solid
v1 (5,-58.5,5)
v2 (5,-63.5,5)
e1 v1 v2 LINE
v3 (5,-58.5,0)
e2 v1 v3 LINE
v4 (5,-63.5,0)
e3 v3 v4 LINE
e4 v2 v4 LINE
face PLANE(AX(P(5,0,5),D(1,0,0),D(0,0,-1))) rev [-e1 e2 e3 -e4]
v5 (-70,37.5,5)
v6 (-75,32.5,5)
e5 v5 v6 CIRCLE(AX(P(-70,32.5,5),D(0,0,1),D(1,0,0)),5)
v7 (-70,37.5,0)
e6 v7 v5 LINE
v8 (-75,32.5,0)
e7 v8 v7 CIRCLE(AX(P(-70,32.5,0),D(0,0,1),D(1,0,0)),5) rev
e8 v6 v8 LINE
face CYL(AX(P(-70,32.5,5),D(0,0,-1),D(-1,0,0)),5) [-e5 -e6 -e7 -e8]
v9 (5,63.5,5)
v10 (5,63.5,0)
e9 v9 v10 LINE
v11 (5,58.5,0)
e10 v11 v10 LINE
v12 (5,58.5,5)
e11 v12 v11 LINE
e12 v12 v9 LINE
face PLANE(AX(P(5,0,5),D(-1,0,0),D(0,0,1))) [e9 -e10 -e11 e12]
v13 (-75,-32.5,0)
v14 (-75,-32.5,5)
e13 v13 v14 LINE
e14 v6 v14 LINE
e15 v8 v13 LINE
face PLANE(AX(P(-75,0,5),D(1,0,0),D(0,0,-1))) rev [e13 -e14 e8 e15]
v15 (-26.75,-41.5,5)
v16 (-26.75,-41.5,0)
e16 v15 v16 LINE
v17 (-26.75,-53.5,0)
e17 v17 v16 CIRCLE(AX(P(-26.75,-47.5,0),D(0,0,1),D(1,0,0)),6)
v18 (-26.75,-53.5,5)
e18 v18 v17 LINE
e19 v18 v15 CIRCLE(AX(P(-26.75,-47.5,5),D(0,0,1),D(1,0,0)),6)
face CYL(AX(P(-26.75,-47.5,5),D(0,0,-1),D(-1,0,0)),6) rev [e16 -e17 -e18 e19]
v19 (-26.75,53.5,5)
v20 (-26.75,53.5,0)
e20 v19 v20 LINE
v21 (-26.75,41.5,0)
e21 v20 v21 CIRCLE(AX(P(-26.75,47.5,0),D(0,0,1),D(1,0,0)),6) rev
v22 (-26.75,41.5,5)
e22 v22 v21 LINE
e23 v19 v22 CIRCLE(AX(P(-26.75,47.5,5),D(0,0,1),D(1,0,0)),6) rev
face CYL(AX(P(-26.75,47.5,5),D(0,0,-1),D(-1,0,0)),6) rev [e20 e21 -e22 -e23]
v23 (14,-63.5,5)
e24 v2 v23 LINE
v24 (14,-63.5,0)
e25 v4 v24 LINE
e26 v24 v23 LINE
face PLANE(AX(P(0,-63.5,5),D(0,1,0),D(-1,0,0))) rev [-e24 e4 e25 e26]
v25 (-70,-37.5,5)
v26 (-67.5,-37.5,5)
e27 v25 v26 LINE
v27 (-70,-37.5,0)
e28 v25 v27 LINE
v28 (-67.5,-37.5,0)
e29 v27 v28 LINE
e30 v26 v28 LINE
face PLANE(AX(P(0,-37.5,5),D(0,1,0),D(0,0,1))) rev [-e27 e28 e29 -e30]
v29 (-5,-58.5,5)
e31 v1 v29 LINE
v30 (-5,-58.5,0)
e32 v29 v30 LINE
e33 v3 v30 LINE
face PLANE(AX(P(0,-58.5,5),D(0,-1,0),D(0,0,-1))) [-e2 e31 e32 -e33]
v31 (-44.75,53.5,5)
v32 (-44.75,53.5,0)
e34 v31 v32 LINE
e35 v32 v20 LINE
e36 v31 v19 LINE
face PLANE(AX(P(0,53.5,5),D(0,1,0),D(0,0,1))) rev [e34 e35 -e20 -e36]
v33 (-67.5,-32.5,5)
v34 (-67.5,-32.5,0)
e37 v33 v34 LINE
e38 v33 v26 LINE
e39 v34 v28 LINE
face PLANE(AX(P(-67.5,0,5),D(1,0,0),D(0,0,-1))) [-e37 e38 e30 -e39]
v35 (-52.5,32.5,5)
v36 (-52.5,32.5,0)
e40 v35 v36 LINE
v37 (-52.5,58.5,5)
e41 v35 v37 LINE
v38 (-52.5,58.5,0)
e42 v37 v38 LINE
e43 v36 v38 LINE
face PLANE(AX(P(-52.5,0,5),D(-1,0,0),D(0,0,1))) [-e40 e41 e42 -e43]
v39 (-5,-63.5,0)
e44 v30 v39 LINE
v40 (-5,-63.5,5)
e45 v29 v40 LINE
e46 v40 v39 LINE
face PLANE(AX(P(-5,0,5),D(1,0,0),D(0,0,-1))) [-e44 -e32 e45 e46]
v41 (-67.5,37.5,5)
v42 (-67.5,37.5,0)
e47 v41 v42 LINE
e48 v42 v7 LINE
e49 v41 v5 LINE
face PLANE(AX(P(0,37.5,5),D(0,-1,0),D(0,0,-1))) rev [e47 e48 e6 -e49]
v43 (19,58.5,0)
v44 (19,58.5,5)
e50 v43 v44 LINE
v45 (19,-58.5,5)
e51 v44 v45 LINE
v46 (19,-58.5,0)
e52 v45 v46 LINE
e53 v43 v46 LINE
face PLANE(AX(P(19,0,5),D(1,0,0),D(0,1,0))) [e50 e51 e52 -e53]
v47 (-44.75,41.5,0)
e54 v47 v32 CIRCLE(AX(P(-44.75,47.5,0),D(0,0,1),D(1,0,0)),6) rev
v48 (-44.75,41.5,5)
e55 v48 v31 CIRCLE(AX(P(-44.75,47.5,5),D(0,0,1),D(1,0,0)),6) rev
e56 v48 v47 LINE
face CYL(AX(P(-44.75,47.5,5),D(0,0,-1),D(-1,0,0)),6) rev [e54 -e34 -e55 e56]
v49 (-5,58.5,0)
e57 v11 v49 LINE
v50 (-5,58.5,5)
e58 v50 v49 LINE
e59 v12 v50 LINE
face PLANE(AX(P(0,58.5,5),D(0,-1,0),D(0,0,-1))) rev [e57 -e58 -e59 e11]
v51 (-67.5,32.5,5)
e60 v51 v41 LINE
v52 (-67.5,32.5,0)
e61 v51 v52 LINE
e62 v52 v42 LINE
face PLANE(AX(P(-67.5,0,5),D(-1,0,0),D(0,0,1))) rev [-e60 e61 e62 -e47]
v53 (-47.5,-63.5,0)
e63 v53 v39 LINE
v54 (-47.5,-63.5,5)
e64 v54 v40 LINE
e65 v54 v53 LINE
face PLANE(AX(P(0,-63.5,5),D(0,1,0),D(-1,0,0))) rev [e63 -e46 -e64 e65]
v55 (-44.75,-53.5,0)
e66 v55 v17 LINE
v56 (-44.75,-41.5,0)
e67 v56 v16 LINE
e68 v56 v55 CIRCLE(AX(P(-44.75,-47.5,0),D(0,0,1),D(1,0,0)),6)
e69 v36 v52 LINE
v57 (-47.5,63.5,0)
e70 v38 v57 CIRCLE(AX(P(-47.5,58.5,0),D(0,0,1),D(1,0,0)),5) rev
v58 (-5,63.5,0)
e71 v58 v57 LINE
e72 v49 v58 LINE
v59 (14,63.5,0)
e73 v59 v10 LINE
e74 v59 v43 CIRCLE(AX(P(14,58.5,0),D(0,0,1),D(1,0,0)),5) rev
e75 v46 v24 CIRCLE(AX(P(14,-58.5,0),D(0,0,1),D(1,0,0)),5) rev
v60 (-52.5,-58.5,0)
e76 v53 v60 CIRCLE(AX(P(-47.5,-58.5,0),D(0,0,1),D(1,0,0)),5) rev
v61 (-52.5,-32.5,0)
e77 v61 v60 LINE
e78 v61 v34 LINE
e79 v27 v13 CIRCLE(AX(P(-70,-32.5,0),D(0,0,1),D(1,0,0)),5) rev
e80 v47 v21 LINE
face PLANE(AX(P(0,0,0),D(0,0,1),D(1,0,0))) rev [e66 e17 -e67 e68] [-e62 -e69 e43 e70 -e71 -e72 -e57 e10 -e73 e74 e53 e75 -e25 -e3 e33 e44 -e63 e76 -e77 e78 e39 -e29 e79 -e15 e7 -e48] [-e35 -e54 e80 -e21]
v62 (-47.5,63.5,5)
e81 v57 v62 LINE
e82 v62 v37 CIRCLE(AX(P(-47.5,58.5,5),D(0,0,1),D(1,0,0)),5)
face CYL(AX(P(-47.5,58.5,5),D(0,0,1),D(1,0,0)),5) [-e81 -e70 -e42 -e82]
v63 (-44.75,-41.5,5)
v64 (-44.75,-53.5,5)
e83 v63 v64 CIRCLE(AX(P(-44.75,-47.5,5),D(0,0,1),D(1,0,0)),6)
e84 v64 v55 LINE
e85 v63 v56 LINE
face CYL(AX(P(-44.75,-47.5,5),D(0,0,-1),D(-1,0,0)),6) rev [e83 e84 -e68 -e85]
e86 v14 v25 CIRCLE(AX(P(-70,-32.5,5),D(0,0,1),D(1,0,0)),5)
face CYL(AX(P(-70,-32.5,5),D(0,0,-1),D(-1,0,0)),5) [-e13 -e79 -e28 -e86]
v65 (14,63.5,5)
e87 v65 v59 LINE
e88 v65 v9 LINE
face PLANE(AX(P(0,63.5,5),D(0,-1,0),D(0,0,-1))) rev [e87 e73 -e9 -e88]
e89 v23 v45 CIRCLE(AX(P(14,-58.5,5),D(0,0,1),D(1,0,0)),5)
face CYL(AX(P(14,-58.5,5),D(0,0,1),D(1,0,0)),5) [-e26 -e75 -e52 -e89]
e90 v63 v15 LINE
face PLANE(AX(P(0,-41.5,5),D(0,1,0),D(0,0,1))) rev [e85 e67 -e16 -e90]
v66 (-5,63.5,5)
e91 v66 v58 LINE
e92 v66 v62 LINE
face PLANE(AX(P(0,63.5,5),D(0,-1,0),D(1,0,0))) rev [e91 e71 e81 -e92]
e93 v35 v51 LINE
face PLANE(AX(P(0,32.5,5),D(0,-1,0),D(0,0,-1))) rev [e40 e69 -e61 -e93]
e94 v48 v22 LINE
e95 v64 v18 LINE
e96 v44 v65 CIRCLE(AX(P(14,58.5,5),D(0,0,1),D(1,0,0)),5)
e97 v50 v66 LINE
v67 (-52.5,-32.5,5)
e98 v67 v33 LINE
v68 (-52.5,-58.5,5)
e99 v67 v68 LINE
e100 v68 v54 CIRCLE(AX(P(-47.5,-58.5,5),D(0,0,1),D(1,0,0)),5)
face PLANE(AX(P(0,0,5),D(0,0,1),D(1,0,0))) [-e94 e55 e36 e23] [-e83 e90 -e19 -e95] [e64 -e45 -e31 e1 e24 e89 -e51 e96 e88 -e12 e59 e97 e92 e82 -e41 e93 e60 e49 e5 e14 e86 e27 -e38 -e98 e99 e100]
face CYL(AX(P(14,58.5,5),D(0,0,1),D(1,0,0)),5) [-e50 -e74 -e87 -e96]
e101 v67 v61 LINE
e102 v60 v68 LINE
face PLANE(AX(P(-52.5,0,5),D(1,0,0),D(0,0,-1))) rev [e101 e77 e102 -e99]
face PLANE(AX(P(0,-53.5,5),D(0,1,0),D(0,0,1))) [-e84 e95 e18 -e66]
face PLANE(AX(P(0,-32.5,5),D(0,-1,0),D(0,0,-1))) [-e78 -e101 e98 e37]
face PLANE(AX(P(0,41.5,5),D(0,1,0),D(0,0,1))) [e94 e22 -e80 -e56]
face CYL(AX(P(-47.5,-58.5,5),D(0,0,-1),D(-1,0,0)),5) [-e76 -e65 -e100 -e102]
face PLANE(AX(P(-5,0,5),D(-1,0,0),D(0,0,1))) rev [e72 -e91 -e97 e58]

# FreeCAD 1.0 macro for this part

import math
import FreeCAD as App
import Part
import Sketcher

V = App.Vector
Q = App.Units.Quantity


def edges_at(feature, points):
    """Names of the edges that pass closest to the given points."""
    edges = feature.Shape.Edges
    near = lambda p: min(range(len(edges)), key=lambda i: edges[i].distToShape(Part.Vertex(*p))[0])
    return sorted({f"Edge{near(p) + 1}" for p in points})

doc = App.newDocument("Part")
body = doc.addObject("PartDesign::Body", "Body")

sketch1 = body.newObject("Sketcher::SketchObject", "Sketch")
sketch1.AttachmentSupport = (doc.getObject("XY_Plane"), [""])
sketch1.MapMode = "FlatFace"
sketch1.addGeometry(Part.LineSegment(V(-5, -64, 0), V(-5, -58, 0)), False)
sketch1.addGeometry(Part.LineSegment(V(-5, -58, 0), V(5, -58, 0)), False)
sketch1.addGeometry(Part.LineSegment(V(5, -58, 0), V(5, -64, 0)), False)
sketch1.addGeometry(Part.LineSegment(V(5, -64, 0), V(19, -64, 0)), False)
sketch1.addGeometry(Part.LineSegment(V(19, -64, 0), V(19, 64, 0)), False)
sketch1.addGeometry(Part.LineSegment(V(19, 64, 0), V(5, 64, 0)), False)
sketch1.addGeometry(Part.LineSegment(V(5, 64, 0), V(5, 58, 0)), False)
sketch1.addGeometry(Part.LineSegment(V(5, 58, 0), V(-5, 58, 0)), False)
sketch1.addGeometry(Part.LineSegment(V(-5, 58, 0), V(-5, 64, 0)), False)
sketch1.addGeometry(Part.LineSegment(V(-5, 64, 0), V(-52, 64, 0)), False)
sketch1.addGeometry(Part.LineSegment(V(-52, 64, 0), V(-52, 32, 0)), False)
sketch1.addGeometry(Part.LineSegment(V(-52, 32, 0), V(-68, 32, 0)), False)
sketch1.addGeometry(Part.LineSegment(V(-68, 32, 0), V(-68, 38, 0)), False)
sketch1.addGeometry(Part.LineSegment(V(-68, 38, 0), V(-75, 38, 0)), False)
sketch1.addGeometry(Part.LineSegment(V(-75, 38, 0), V(-75, -38, 0)), False)
sketch1.addGeometry(Part.LineSegment(V(-75, -38, 0), V(-68, -38, 0)), False)
sketch1.addGeometry(Part.LineSegment(V(-68, -38, 0), V(-68, -32, 0)), False)
sketch1.addGeometry(Part.LineSegment(V(-68, -32, 0), V(-52, -32, 0)), False)
sketch1.addGeometry(Part.LineSegment(V(-52, -32, 0), V(-52, -64, 0)), False)
sketch1.addGeometry(Part.LineSegment(V(-52, -64, 0), V(-5, -64, 0)), False)
sketch1.addGeometry(Part.ArcOfCircle(Part.Circle(V(-45, -48, 0), V(0, 0, 1), 6), math.radians(90), math.radians(270)), False)
sketch1.addGeometry(Part.LineSegment(V(-45, -42, 0), V(-27, -42, 0)), False)
sketch1.addGeometry(Part.ArcOfCircle(Part.Circle(V(-27, -48, 0), V(0, 0, 1), 6), math.radians(-90), math.radians(90)), False)
sketch1.addGeometry(Part.LineSegment(V(-27, -54, 0), V(-45, -54, 0)), False)
sketch1.addGeometry(Part.ArcOfCircle(Part.Circle(V(-27, 48, 0), V(0, 0, 1), 6), math.radians(-90), math.radians(90)), False)
sketch1.addGeometry(Part.LineSegment(V(-27, 42, 0), V(-45, 42, 0)), False)
sketch1.addGeometry(Part.ArcOfCircle(Part.Circle(V(-45, 48, 0), V(0, 0, 1), 6), math.radians(90), math.radians(270)), False)
sketch1.addGeometry(Part.LineSegment(V(-45, 54, 0), V(-27, 54, 0)), False)
sketch1.addConstraint(Sketcher.Constraint("Coincident", 0, 2, 1, 1))
sketch1.addConstraint(Sketcher.Constraint("Coincident", 1, 2, 2, 1))
sketch1.addConstraint(Sketcher.Constraint("Coincident", 2, 2, 3, 1))
sketch1.addConstraint(Sketcher.Constraint("Coincident", 3, 2, 4, 1))
sketch1.addConstraint(Sketcher.Constraint("Coincident", 4, 2, 5, 1))
sketch1.addConstraint(Sketcher.Constraint("Coincident", 5, 2, 6, 1))
sketch1.addConstraint(Sketcher.Constraint("Coincident", 6, 2, 7, 1))
sketch1.addConstraint(Sketcher.Constraint("Coincident", 7, 2, 8, 1))
sketch1.addConstraint(Sketcher.Constraint("Coincident", 8, 2, 9, 1))
sketch1.addConstraint(Sketcher.Constraint("Coincident", 9, 2, 10, 1))
sketch1.addConstraint(Sketcher.Constraint("Coincident", 10, 2, 11, 1))
sketch1.addConstraint(Sketcher.Constraint("Coincident", 11, 2, 12, 1))
sketch1.addConstraint(Sketcher.Constraint("Coincident", 12, 2, 13, 1))
sketch1.addConstraint(Sketcher.Constraint("Coincident", 13, 2, 14, 1))
sketch1.addConstraint(Sketcher.Constraint("Coincident", 14, 2, 15, 1))
sketch1.addConstraint(Sketcher.Constraint("Coincident", 15, 2, 16, 1))
sketch1.addConstraint(Sketcher.Constraint("Coincident", 16, 2, 17, 1))
sketch1.addConstraint(Sketcher.Constraint("Coincident", 17, 2, 18, 1))
sketch1.addConstraint(Sketcher.Constraint("Coincident", 18, 2, 19, 1))
sketch1.addConstraint(Sketcher.Constraint("Coincident", 19, 2, 0, 1))
sketch1.addConstraint(Sketcher.Constraint("Tangent", 20, 1, 21, 1))
sketch1.addConstraint(Sketcher.Constraint("Tangent", 21, 2, 22, 2))
sketch1.addConstraint(Sketcher.Constraint("Tangent", 22, 1, 23, 1))
sketch1.addConstraint(Sketcher.Constraint("Tangent", 23, 2, 20, 2))
sketch1.addConstraint(Sketcher.Constraint("Tangent", 24, 1, 25, 1))
sketch1.addConstraint(Sketcher.Constraint("Tangent", 25, 2, 26, 2))
sketch1.addConstraint(Sketcher.Constraint("Tangent", 26, 1, 27, 1))
sketch1.addConstraint(Sketcher.Constraint("Tangent", 27, 2, 24, 2))
sketch1.addConstraint(Sketcher.Constraint("Vertical", 0))
sketch1.addConstraint(Sketcher.Constraint("Horizontal", 1))
sketch1.addConstraint(Sketcher.Constraint("Vertical", 2))
sketch1.addConstraint(Sketcher.Constraint("Horizontal", 3))
sketch1.addConstraint(Sketcher.Constraint("Vertical", 4))
sketch1.addConstraint(Sketcher.Constraint("Horizontal", 5))
sketch1.addConstraint(Sketcher.Constraint("Vertical", 6))
sketch1.addConstraint(Sketcher.Constraint("Horizontal", 7))
sketch1.addConstraint(Sketcher.Constraint("Vertical", 8))
sketch1.addConstraint(Sketcher.Constraint("Horizontal", 9))
sketch1.addConstraint(Sketcher.Constraint("Vertical", 10))
sketch1.addConstraint(Sketcher.Constraint("Horizontal", 11))
sketch1.addConstraint(Sketcher.Constraint("Vertical", 12))
sketch1.addConstraint(Sketcher.Constraint("Horizontal", 13))
sketch1.addConstraint(Sketcher.Constraint("Vertical", 14))
sketch1.addConstraint(Sketcher.Constraint("Horizontal", 15))
sketch1.addConstraint(Sketcher.Constraint("Vertical", 16))
sketch1.addConstraint(Sketcher.Constraint("Horizontal", 17))
sketch1.addConstraint(Sketcher.Constraint("Vertical", 18))
sketch1.addConstraint(Sketcher.Constraint("Horizontal", 19))
sketch1.addConstraint(Sketcher.Constraint("Horizontal", 21))
sketch1.addConstraint(Sketcher.Constraint("Horizontal", 23))
sketch1.addConstraint(Sketcher.Constraint("Horizontal", 25))
sketch1.addConstraint(Sketcher.Constraint("Horizontal", 27))
sketch1.addConstraint(Sketcher.Constraint("Equal", 22, 24))
sketch1.addConstraint(Sketcher.Constraint("Symmetric", 0, 2, 6, 2, -1, 1))
sketch1.addConstraint(Sketcher.Constraint("Symmetric", 2, 2, 8, 2, -1, 1))
sketch1.addConstraint(Sketcher.Constraint("Symmetric", 5, 2, 8, 2, -2))
sketch1.addConstraint(Sketcher.Constraint("Symmetric", 22, 3, 24, 3, -1))
sketch1.addConstraint(Sketcher.Constraint("Symmetric", 12, 2, 15, 2, -1))
sketch1.addConstraint(Sketcher.Constraint("Symmetric", 10, 2, 17, 2, -1))
sketch1.addConstraint(Sketcher.Constraint("Horizontal", 3, 2, 18, 2))
sketch1.addConstraint(Sketcher.Constraint("Vertical", 20, 3, 26, 3))
sketch1.addConstraint(Sketcher.Constraint("Equal", 8, 12))
sketch1.addConstraint(Sketcher.Constraint("Radius", 20, Q("6 mm")))
sketch1.addConstraint(Sketcher.Constraint("DistanceX", 1, 1, 1, 2, Q("10 mm")))
sketch1.addConstraint(Sketcher.Constraint("DistanceX", 3, 1, 3, 2, Q("14 mm")))
sketch1.addConstraint(Sketcher.Constraint("DistanceX", 11, 2, 11, 1, Q("15 mm")))
sketch1.addConstraint(Sketcher.Constraint("DistanceX", 21, 1, 21, 2, Q("18 mm")))
sketch1.addConstraint(Sketcher.Constraint("DistanceY", 0, 1, 0, 2, Q("5 mm")))
sketch1.addConstraint(Sketcher.Constraint("DistanceY", 4, 1, 4, 2, Q("127 mm")))
sketch1.addConstraint(Sketcher.Constraint("DistanceY", 10, 2, 10, 1, Q("31 mm")))
sketch1.addConstraint(Sketcher.Constraint("DistanceX", 9, 2, 9, 1, Q("47.5 mm")))
sketch1.addConstraint(Sketcher.Constraint("DistanceX", 13, 2, 13, 1, Q("7.5 mm")))
sketch1.addConstraint(Sketcher.Constraint("DistanceY", 22, 3, 24, 3, Q("95 mm")))
sketch1.addConstraint(Sketcher.Constraint("DistanceX", 20, 3, -1, 1, Q("44.75 mm")))
pad1 = body.newObject("PartDesign::Pad", "Pad")
pad1.Profile = sketch1
pad1.Length = 5
doc.recompute()

fillet = body.newObject("PartDesign::Fillet", "Fillet")
fillet.Base = (pad1, edges_at(pad1, [
    (19, 63.5, 2.5),
    (19, -63.5, 2.5),
    (-52.5, -63.5, 2.5),
    (-75, -37.5, 2.5),
    (-75, 37.5, 2.5),
    (-52.5, 63.5, 2.5),
]))
fillet.Radius = 5

doc.recompute()
